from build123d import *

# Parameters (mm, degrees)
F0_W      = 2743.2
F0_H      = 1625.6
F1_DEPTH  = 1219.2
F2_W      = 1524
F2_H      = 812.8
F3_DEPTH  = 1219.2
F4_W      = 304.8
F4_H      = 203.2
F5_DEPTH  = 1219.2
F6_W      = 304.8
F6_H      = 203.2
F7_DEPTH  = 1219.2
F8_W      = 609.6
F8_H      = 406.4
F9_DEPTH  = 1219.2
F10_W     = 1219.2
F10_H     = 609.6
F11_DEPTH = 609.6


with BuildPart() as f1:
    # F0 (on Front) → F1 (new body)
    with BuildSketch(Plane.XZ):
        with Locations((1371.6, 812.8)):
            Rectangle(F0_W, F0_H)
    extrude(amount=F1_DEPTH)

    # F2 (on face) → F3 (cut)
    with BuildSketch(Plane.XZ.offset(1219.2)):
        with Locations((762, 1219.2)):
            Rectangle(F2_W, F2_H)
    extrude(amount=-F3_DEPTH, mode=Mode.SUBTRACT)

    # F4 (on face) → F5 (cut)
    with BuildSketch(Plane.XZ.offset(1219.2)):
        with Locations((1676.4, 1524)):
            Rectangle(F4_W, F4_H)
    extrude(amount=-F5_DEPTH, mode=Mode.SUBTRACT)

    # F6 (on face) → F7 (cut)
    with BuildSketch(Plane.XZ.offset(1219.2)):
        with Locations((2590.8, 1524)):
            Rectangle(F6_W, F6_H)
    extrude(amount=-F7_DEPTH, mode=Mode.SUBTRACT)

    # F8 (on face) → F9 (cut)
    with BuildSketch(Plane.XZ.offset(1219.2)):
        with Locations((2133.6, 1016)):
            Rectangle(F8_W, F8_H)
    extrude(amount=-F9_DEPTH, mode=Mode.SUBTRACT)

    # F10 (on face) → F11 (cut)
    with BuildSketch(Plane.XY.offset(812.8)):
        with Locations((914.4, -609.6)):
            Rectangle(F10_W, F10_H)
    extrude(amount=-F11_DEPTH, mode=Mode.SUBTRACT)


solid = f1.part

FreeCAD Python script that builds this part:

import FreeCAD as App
import Part
import Sketcher

V = App.Vector
Q = App.Units.Quantity


def add_polygon(sketch, points):
    """Adds a closed chain of lines whose ends are joined by coincident constraints."""
    first, n = sketch.GeometryCount, len(points)
    for a, b in zip(points, points[1:] + points[:1]):
        sketch.addGeometry(Part.LineSegment(App.Vector(*a, 0), App.Vector(*b, 0)), False)
    for i in range(n):
        sketch.addConstraint(Sketcher.Constraint("Coincident", first + i, 2, first + (i + 1) % n, 1))

doc = App.newDocument("Part")
body = doc.addObject("PartDesign::Body", "Body")

sketch1 = body.newObject("Sketcher::SketchObject", "Sketch")
sketch1.AttachmentSupport = (doc.getObject("XZ_Plane"), [""])
sketch1.MapMode = "FlatFace"
add_polygon(sketch1, [(0, 1626), (0, 0), (2743, 0), (2743, 1626)])
sketch1.addConstraint(Sketcher.Constraint("Vertical", 0))
sketch1.addConstraint(Sketcher.Constraint("Horizontal", 1))
sketch1.addConstraint(Sketcher.Constraint("Vertical", 2))
sketch1.addConstraint(Sketcher.Constraint("Horizontal", 3))
sketch1.addConstraint(Sketcher.Constraint("Coincident", 0, 2, -1, 1))
sketch1.addConstraint(Sketcher.Constraint("DistanceX", 1, 1, 1, 2, Q("108 in")))
sketch1.addConstraint(Sketcher.Constraint("DistanceY", 0, 2, 0, 1, Q("64 in")))
pad1 = body.newObject("PartDesign::Pad", "Pad")
pad1.Profile = sketch1
pad1.Length = Q("48 in")

sketch2 = body.newObject("Sketcher::SketchObject", "Sketch001")
sketch2.AttachmentSupport = (doc.getObject("XZ_Plane"), [""])
sketch2.MapMode = "FlatFace"
sketch2.AttachmentOffset = App.Placement(V(0, 0, 48 * 25.4), App.Rotation())
add_polygon(sketch2, [(0, 1626), (0, 813), (1524, 813), (1524, 1626)])
sketch2.addConstraint(Sketcher.Constraint("Vertical", 0))
sketch2.addConstraint(Sketcher.Constraint("Horizontal", 1))
sketch2.addConstraint(Sketcher.Constraint("Vertical", 2))
sketch2.addConstraint(Sketcher.Constraint("Horizontal", 3))
sketch2.addConstraint(Sketcher.Constraint("PointOnObject", 0, 2, -2))
sketch2.addConstraint(Sketcher.Constraint("DistanceX", 1, 1, 1, 2, Q("60 in")))
sketch2.addConstraint(Sketcher.Constraint("DistanceY", 0, 2, 0, 1, Q("32 in")))
sketch2.addConstraint(Sketcher.Constraint("DistanceY", -1, 1, 0, 2, Q("32 in")))
pocket1 = body.newObject("PartDesign::Pocket", "Pocket")
pocket1.Profile = sketch2
pocket1.Length = Q("48 in")

sketch3 = body.newObject("Sketcher::SketchObject", "Sketch002")
sketch3.AttachmentSupport = (doc.getObject("XZ_Plane"), [""])
sketch3.MapMode = "FlatFace"
sketch3.AttachmentOffset = App.Placement(V(0, 0, 48 * 25.4), App.Rotation())
add_polygon(sketch3, [(1524, 1626), (1524, 1422), (1829, 1422), (1829, 1626)])
sketch3.addConstraint(Sketcher.Constraint("Vertical", 0))
sketch3.addConstraint(Sketcher.Constraint("Horizontal", 1))
sketch3.addConstraint(Sketcher.Constraint("Vertical", 2))
sketch3.addConstraint(Sketcher.Constraint("Horizontal", 3))
sketch3.addConstraint(Sketcher.Constraint("DistanceX", 1, 1, 1, 2, Q("12 in")))
sketch3.addConstraint(Sketcher.Constraint("DistanceY", 0, 2, 0, 1, Q("8 in")))
sketch3.addConstraint(Sketcher.Constraint("DistanceX", -1, 1, 0, 2, Q("60 in")))
sketch3.addConstraint(Sketcher.Constraint("DistanceY", -1, 1, 0, 2, Q("56 in")))
pocket2 = body.newObject("PartDesign::Pocket", "Pocket001")
pocket2.Profile = sketch3
pocket2.Length = Q("48 in")

sketch4 = body.newObject("Sketcher::SketchObject", "Sketch003")
sketch4.AttachmentSupport = (doc.getObject("XZ_Plane"), [""])
sketch4.MapMode = "FlatFace"
sketch4.AttachmentOffset = App.Placement(V(0, 0, 48 * 25.4), App.Rotation())
add_polygon(sketch4, [(2438, 1626), (2438, 1422), (2743, 1422), (2743, 1626)])
sketch4.addConstraint(Sketcher.Constraint("Vertical", 0))
sketch4.addConstraint(Sketcher.Constraint("Horizontal", 1))
sketch4.addConstraint(Sketcher.Constraint("Vertical", 2))
sketch4.addConstraint(Sketcher.Constraint("Horizontal", 3))
sketch4.addConstraint(Sketcher.Constraint("DistanceX", 1, 1, 1, 2, Q("12 in")))
sketch4.addConstraint(Sketcher.Constraint("DistanceY", 0, 2, 0, 1, Q("8 in")))
sketch4.addConstraint(Sketcher.Constraint("DistanceX", -1, 1, 0, 2, Q("96 in")))
sketch4.addConstraint(Sketcher.Constraint("DistanceY", -1, 1, 0, 2, Q("56 in")))
pocket3 = body.newObject("PartDesign::Pocket", "Pocket002")
pocket3.Profile = sketch4
pocket3.Length = Q("48 in")

sketch5 = body.newObject("Sketcher::SketchObject", "Sketch004")
sketch5.AttachmentSupport = (doc.getObject("XZ_Plane"), [""])
sketch5.MapMode = "FlatFace"
sketch5.AttachmentOffset = App.Placement(V(0, 0, 48 * 25.4), App.Rotation())
add_polygon(sketch5, [(1829, 1219), (1829, 813), (2438, 813), (2438, 1219)])
sketch5.addConstraint(Sketcher.Constraint("Vertical", 0))
sketch5.addConstraint(Sketcher.Constraint("Horizontal", 1))
sketch5.addConstraint(Sketcher.Constraint("Vertical", 2))
sketch5.addConstraint(Sketcher.Constraint("Horizontal", 3))
sketch5.addConstraint(Sketcher.Constraint("DistanceX", 1, 1, 1, 2, Q("24 in")))
sketch5.addConstraint(Sketcher.Constraint("DistanceY", 0, 2, 0, 1, Q("16 in")))
sketch5.addConstraint(Sketcher.Constraint("DistanceX", -1, 1, 0, 2, Q("72 in")))
sketch5.addConstraint(Sketcher.Constraint("DistanceY", -1, 1, 0, 2, Q("32 in")))
pocket4 = body.newObject("PartDesign::Pocket", "Pocket003")
pocket4.Profile = sketch5
pocket4.Length = Q("48 in")

sketch6 = body.newObject("Sketcher::SketchObject", "Sketch005")
sketch6.AttachmentSupport = (doc.getObject("XY_Plane"), [""])
sketch6.MapMode = "FlatFace"
sketch6.AttachmentOffset = App.Placement(V(0, 0, 32 * 25.4), App.Rotation())
add_polygon(sketch6, [(305, -305), (305, -914), (1524, -914), (1524, -305)])
sketch6.addConstraint(Sketcher.Constraint("Vertical", 0))
sketch6.addConstraint(Sketcher.Constraint("Horizontal", 1))
sketch6.addConstraint(Sketcher.Constraint("Vertical", 2))
sketch6.addConstraint(Sketcher.Constraint("Horizontal", 3))
sketch6.addConstraint(Sketcher.Constraint("DistanceX", 1, 1, 1, 2, Q("48 in")))
sketch6.addConstraint(Sketcher.Constraint("DistanceY", 0, 2, 0, 1, Q("24 in")))
sketch6.addConstraint(Sketcher.Constraint("DistanceX", -1, 1, 0, 2, Q("12 in")))
sketch6.addConstraint(Sketcher.Constraint("DistanceY", 0, 2, -1, 1, Q("36 in")))
pocket5 = body.newObject("PartDesign::Pocket", "Pocket004")
pocket5.Profile = sketch6
pocket5.Length = Q("24 in")

doc.recompute()
